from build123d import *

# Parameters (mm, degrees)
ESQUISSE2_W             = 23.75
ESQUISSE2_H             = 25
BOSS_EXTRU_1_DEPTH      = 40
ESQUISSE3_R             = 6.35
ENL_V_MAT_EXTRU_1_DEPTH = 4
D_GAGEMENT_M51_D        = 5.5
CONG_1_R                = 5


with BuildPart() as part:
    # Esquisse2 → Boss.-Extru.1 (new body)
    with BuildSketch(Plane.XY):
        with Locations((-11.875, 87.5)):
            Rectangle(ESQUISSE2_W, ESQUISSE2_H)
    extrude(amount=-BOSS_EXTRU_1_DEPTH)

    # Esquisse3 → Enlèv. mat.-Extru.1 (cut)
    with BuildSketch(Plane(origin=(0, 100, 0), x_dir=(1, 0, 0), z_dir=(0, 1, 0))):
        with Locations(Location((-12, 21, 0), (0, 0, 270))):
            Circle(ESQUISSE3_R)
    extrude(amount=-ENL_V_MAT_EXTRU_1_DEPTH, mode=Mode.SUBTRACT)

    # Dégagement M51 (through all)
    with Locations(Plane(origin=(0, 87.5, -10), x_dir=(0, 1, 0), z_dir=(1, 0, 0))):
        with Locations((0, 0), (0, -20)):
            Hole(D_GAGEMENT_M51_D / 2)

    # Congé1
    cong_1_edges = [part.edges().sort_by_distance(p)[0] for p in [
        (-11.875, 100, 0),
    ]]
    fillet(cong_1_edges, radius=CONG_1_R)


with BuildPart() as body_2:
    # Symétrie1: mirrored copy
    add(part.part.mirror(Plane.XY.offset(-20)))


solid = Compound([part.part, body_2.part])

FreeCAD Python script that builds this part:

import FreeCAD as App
import Part
import Sketcher

V = App.Vector
Q = App.Units.Quantity


def edges_at(feature, points):
    """Names of the edges that pass closest to the given points."""
    edges = feature.Shape.Edges
    near = lambda p: min(range(len(edges)), key=lambda i: edges[i].distToShape(Part.Vertex(*p))[0])
    return sorted({f"Edge{near(p) + 1}" for p in points})

doc = App.newDocument("Part")
body = doc.addObject("PartDesign::Body", "Body")

# Sketch on XY plane
sketch1 = doc.addObject("Sketcher::SketchObject", "Sketch")
body.addObject(sketch1)
sketch1.AttachmentSupport = (doc.XY_Plane, [""])
sketch1.MapMode = "FlatFace"
sketch1.addGeometry([
    Part.LineSegment(V(-24, 100, 0), V(-24, 75, 0)),
    Part.LineSegment(V(-24, 75, 0), V(0, 75, 0)),
    Part.LineSegment(V(0, 75, 0), V(0, 100, 0)),
    Part.LineSegment(V(0, 100, 0), V(-24, 100, 0)),
], False)
sketch1.addConstraint([
    Sketcher.Constraint("Coincident", 0, 2, 1, 1),
    Sketcher.Constraint("Coincident", 1, 2, 2, 1),
    Sketcher.Constraint("Coincident", 2, 2, 3, 1),
    Sketcher.Constraint("Coincident", 3, 2, 0, 1),
    Sketcher.Constraint("Vertical", 0),
    Sketcher.Constraint("Horizontal", 1),
    Sketcher.Constraint("Vertical", 2),
    Sketcher.Constraint("Horizontal", 3),
    Sketcher.Constraint("PointOnObject", 1, 2, -2),
    Sketcher.Constraint("DistanceY", 0, 2, 0, 1, Q("25 mm")),
    Sketcher.Constraint("DistanceY", -1, 1, 0, 2, Q("75 mm")),
    Sketcher.Constraint("DistanceX", 1, 1, 1, 2, Q("23.75 mm")),
])
pad1 = doc.addObject("PartDesign::Pad", "Pad")
body.addObject(pad1)
pad1.Profile = sketch1
pad1.Length = 40
pad1.Reversed = True

# Sketch on XZ plane
sketch2 = doc.addObject("Sketcher::SketchObject", "Sketch001")
body.addObject(sketch2)
sketch2.AttachmentSupport = (doc.XZ_Plane, [""])
sketch2.MapMode = "FlatFace"
sketch2.AttachmentOffset = App.Placement(V(0, 0, -100), App.Rotation())
sketch2.addGeometry(Part.Circle(V(-12, -21, 0), V(0, 0, 1), 6), False)
sketch2.addConstraint([
    Sketcher.Constraint("Diameter", 0, Q("12.7 mm")),
    Sketcher.Constraint("DistanceX", 0, 3, -1, 1, Q("12 mm")),
    Sketcher.Constraint("DistanceY", 0, 3, -1, 1, Q("21 mm")),
])
pocket1 = doc.addObject("PartDesign::Pocket", "Pocket")
body.addObject(pocket1)
pocket1.Profile = sketch2
pocket1.Length = 4
pocket1.Reversed = True

# Sketch on YZ plane
sketch3 = doc.addObject("Sketcher::SketchObject", "Sketch002")
body.addObject(sketch3)
sketch3.AttachmentSupport = (doc.YZ_Plane, [""])
sketch3.MapMode = "FlatFace"
sketch3.addGeometry([
    Part.Circle(V(87.5, -10, 0), V(0, 0, 1), 2.8),
    Part.Circle(V(87.5, -30, 0), V(0, 0, 1), 2.8),
], False)
sketch3.addConstraint([
    Sketcher.Constraint("Equal", 0, 1),
    Sketcher.Constraint("Vertical", 0, 3, 1, 3),
    Sketcher.Constraint("Diameter", 0, Q("5.5 mm")),
    Sketcher.Constraint("DistanceY", 0, 3, -1, 1, Q("10 mm")),
    Sketcher.Constraint("DistanceY", 1, 3, -1, 1, Q("30 mm")),
    Sketcher.Constraint("DistanceX", -1, 1, 0, 3, Q("87.5 mm")),
])
doc.recompute()
hole = doc.addObject("PartDesign::Hole", "Hole")
body.addObject(hole)
hole.Profile = sketch3
hole.ThreadType = "None"
hole.Diameter = 5.5
hole.DepthType = "ThroughAll"
doc.recompute()

fillet = doc.addObject("PartDesign::Fillet", "Fillet")
body.addObject(fillet)
fillet.Base = (hole, edges_at(hole, [(-11.875, 100, 0)]))
fillet.Radius = 5
body2 = doc.addObject("PartDesign::Body", "Body001")
doc.recompute()

mirroring = doc.addObject("Part::Mirroring", "Mirroring")
mirroring.Source = body
mirroring.Base = V(0, 0, -20)
mirroring.Normal = V(0, 0, 1)
body2.BaseFeature = mirroring
doc.recompute()
mirroring.Visibility = False

doc.recompute()
